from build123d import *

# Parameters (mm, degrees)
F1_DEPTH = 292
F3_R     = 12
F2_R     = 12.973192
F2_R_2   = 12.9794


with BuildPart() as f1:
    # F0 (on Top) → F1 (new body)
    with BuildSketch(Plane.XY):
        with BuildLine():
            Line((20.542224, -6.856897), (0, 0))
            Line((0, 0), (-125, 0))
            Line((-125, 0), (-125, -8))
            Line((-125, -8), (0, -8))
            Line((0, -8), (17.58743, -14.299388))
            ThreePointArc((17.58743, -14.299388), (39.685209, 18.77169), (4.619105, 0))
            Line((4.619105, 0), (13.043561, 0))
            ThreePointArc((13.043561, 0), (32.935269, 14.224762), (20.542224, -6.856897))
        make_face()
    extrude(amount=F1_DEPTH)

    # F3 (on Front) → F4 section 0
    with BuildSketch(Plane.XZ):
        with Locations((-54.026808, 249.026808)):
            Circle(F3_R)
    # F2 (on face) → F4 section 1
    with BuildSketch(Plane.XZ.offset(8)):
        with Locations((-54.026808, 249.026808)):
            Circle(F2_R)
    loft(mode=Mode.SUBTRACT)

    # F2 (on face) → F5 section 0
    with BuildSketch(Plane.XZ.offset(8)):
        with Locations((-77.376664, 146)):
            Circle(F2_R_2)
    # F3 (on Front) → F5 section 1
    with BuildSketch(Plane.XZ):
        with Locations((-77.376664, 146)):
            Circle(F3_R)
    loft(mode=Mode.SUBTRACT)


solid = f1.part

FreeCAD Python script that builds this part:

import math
import FreeCAD as App
import Part
import Sketcher

V = App.Vector
Q = App.Units.Quantity

doc = App.newDocument("Part")
body = doc.addObject("PartDesign::Body", "Body")

# Sketch on XY plane
sketch1 = body.newObject("Sketcher::SketchObject", "Sketch")
sketch1.AttachmentSupport = (doc.getObject("XY_Plane"), [""])
sketch1.MapMode = "FlatFace"
sketch1.addGeometry(Part.LineSegment(V(21, -7, 0), V(0, 0, 0)), False)
sketch1.addGeometry(Part.LineSegment(V(0, 0, 0), V(-125, 0, 0)), False)
sketch1.addGeometry(Part.LineSegment(V(-125, 0, 0), V(-125, -8, 0)), False)
sketch1.addGeometry(Part.LineSegment(V(-125, -8, 0), V(0, -8, 0)), False)
sketch1.addGeometry(Part.LineSegment(V(0, -8, 0), V(18, -14, 0)), False)
sketch1.addGeometry(Part.ArcOfCircle(Part.Circle(V(25, 5, 0), V(0, 0, 1), 21), math.radians(-110), math.radians(194)), False)
sketch1.addGeometry(Part.LineSegment(V(5, 0, 0), V(13, 0, 0)), False)
sketch1.addGeometry(Part.ArcOfCircle(Part.Circle(V(25, 5, 0), V(0, 0, 1), 12), math.radians(-108), math.radians(204)), False)
sketch1.addConstraint(Sketcher.Constraint("Coincident", 0, 2, 1, 1))
sketch1.addConstraint(Sketcher.Constraint("Coincident", 1, 2, 2, 1))
sketch1.addConstraint(Sketcher.Constraint("Coincident", 2, 2, 3, 1))
sketch1.addConstraint(Sketcher.Constraint("Coincident", 3, 2, 4, 1))
sketch1.addConstraint(Sketcher.Constraint("Tangent", 4, 2, 5, 1))
sketch1.addConstraint(Sketcher.Constraint("Coincident", 5, 2, 6, 1))
sketch1.addConstraint(Sketcher.Constraint("Coincident", 6, 2, 7, 2))
sketch1.addConstraint(Sketcher.Constraint("Tangent", 7, 1, 0, 1))
sketch1.addConstraint(Sketcher.Constraint("Horizontal", 1))
sketch1.addConstraint(Sketcher.Constraint("Vertical", 2))
sketch1.addConstraint(Sketcher.Constraint("Horizontal", 3))
sketch1.addConstraint(Sketcher.Constraint("Horizontal", 6))
sketch1.addConstraint(Sketcher.Constraint("Coincident", 0, 2, -1, 1))
sketch1.addConstraint(Sketcher.Constraint("Coincident", 7, 3, 5, 3))
sketch1.addConstraint(Sketcher.Constraint("PointOnObject", 3, 2, -2))
sketch1.addConstraint(Sketcher.Constraint("PointOnObject", 5, 2, -1))
sketch1.addConstraint(Sketcher.Constraint("Radius", 5, Q("20.5 mm")))
sketch1.addConstraint(Sketcher.Constraint("Radius", 7, Q("12.5 mm")))
sketch1.addConstraint(Sketcher.Constraint("DistanceX", 1, 2, 1, 1, Q("125 mm")))
sketch1.addConstraint(Sketcher.Constraint("DistanceY", 2, 2, 2, 1, Q("8 mm")))
sketch1.addConstraint(Sketcher.Constraint("DistanceY", -1, 1, 5, 3, Q("5 mm")))
sketch1.addConstraint(Sketcher.Constraint("DistanceX", -1, 1, 5, 3, Q("24.5 mm")))
pad1 = body.newObject("PartDesign::Pad", "Pad")
pad1.Profile = sketch1
pad1.Length = 292

# Sketch on XZ plane
sketch2 = body.newObject("Sketcher::SketchObject", "Sketch001")
sketch2.AttachmentSupport = (doc.getObject("XZ_Plane"), [""])
sketch2.MapMode = "FlatFace"
sketch2.addGeometry(Part.Circle(V(-54, 249, 0), V(0, 0, 1), 12), False)
sketch2.addConstraint(Sketcher.Constraint("Diameter", 0, Q("24 mm")))
sketch2.addConstraint(Sketcher.Constraint("DistanceX", 0, 3, -1, 1, Q("54.026808 mm")))
sketch2.addConstraint(Sketcher.Constraint("DistanceY", -1, 1, 0, 3, Q("249.026808 mm")))

# Sketch on XZ plane
sketch3 = body.newObject("Sketcher::SketchObject", "Sketch002")
sketch3.AttachmentSupport = (doc.getObject("XZ_Plane"), [""])
sketch3.MapMode = "FlatFace"
sketch3.AttachmentOffset = App.Placement(V(0, 0, 8), App.Rotation())
sketch3.addGeometry(Part.Circle(V(-54, 249, 0), V(0, 0, 1), 13), False)
sketch3.addConstraint(Sketcher.Constraint("Diameter", 0, Q("25.946384 mm")))
sketch3.addConstraint(Sketcher.Constraint("DistanceX", 0, 3, -1, 1, Q("54.026808 mm")))
sketch3.addConstraint(Sketcher.Constraint("DistanceY", -1, 1, 0, 3, Q("249.026808 mm")))

subtractiveloft = body.newObject("PartDesign::SubtractiveLoft", "SubtractiveLoft")
subtractiveloft.Profile = sketch2
subtractiveloft.Sections = [sketch3]

# Sketch on XZ plane
sketch4 = body.newObject("Sketcher::SketchObject", "Sketch003")
sketch4.AttachmentSupport = (doc.getObject("XZ_Plane"), [""])
sketch4.MapMode = "FlatFace"
sketch4.AttachmentOffset = App.Placement(V(0, 0, 8), App.Rotation())
sketch4.addGeometry(Part.Circle(V(-77, 146, 0), V(0, 0, 1), 13), False)
sketch4.addConstraint(Sketcher.Constraint("DistanceY", -1, 1, 0, 3, Q("146 mm")))
sketch4.addConstraint(Sketcher.Constraint("Diameter", 0, Q("25.9588 mm")))
sketch4.addConstraint(Sketcher.Constraint("DistanceX", 0, 3, -1, 1, Q("77.376664 mm")))

# Sketch on XZ plane
sketch5 = body.newObject("Sketcher::SketchObject", "Sketch004")
sketch5.AttachmentSupport = (doc.getObject("XZ_Plane"), [""])
sketch5.MapMode = "FlatFace"
sketch5.addGeometry(Part.Circle(V(-77, 146, 0), V(0, 0, 1), 12), False)
sketch5.addConstraint(Sketcher.Constraint("Diameter", 0, Q("24 mm")))
sketch5.addConstraint(Sketcher.Constraint("DistanceY", -1, 1, 0, 3, Q("146 mm")))
sketch5.addConstraint(Sketcher.Constraint("DistanceX", 0, 3, -1, 1, Q("77.376664 mm")))

subtractiveloft2 = body.newObject("PartDesign::SubtractiveLoft", "SubtractiveLoft001")
subtractiveloft2.Profile = sketch4
subtractiveloft2.Sections = [sketch5]

doc.recompute()
